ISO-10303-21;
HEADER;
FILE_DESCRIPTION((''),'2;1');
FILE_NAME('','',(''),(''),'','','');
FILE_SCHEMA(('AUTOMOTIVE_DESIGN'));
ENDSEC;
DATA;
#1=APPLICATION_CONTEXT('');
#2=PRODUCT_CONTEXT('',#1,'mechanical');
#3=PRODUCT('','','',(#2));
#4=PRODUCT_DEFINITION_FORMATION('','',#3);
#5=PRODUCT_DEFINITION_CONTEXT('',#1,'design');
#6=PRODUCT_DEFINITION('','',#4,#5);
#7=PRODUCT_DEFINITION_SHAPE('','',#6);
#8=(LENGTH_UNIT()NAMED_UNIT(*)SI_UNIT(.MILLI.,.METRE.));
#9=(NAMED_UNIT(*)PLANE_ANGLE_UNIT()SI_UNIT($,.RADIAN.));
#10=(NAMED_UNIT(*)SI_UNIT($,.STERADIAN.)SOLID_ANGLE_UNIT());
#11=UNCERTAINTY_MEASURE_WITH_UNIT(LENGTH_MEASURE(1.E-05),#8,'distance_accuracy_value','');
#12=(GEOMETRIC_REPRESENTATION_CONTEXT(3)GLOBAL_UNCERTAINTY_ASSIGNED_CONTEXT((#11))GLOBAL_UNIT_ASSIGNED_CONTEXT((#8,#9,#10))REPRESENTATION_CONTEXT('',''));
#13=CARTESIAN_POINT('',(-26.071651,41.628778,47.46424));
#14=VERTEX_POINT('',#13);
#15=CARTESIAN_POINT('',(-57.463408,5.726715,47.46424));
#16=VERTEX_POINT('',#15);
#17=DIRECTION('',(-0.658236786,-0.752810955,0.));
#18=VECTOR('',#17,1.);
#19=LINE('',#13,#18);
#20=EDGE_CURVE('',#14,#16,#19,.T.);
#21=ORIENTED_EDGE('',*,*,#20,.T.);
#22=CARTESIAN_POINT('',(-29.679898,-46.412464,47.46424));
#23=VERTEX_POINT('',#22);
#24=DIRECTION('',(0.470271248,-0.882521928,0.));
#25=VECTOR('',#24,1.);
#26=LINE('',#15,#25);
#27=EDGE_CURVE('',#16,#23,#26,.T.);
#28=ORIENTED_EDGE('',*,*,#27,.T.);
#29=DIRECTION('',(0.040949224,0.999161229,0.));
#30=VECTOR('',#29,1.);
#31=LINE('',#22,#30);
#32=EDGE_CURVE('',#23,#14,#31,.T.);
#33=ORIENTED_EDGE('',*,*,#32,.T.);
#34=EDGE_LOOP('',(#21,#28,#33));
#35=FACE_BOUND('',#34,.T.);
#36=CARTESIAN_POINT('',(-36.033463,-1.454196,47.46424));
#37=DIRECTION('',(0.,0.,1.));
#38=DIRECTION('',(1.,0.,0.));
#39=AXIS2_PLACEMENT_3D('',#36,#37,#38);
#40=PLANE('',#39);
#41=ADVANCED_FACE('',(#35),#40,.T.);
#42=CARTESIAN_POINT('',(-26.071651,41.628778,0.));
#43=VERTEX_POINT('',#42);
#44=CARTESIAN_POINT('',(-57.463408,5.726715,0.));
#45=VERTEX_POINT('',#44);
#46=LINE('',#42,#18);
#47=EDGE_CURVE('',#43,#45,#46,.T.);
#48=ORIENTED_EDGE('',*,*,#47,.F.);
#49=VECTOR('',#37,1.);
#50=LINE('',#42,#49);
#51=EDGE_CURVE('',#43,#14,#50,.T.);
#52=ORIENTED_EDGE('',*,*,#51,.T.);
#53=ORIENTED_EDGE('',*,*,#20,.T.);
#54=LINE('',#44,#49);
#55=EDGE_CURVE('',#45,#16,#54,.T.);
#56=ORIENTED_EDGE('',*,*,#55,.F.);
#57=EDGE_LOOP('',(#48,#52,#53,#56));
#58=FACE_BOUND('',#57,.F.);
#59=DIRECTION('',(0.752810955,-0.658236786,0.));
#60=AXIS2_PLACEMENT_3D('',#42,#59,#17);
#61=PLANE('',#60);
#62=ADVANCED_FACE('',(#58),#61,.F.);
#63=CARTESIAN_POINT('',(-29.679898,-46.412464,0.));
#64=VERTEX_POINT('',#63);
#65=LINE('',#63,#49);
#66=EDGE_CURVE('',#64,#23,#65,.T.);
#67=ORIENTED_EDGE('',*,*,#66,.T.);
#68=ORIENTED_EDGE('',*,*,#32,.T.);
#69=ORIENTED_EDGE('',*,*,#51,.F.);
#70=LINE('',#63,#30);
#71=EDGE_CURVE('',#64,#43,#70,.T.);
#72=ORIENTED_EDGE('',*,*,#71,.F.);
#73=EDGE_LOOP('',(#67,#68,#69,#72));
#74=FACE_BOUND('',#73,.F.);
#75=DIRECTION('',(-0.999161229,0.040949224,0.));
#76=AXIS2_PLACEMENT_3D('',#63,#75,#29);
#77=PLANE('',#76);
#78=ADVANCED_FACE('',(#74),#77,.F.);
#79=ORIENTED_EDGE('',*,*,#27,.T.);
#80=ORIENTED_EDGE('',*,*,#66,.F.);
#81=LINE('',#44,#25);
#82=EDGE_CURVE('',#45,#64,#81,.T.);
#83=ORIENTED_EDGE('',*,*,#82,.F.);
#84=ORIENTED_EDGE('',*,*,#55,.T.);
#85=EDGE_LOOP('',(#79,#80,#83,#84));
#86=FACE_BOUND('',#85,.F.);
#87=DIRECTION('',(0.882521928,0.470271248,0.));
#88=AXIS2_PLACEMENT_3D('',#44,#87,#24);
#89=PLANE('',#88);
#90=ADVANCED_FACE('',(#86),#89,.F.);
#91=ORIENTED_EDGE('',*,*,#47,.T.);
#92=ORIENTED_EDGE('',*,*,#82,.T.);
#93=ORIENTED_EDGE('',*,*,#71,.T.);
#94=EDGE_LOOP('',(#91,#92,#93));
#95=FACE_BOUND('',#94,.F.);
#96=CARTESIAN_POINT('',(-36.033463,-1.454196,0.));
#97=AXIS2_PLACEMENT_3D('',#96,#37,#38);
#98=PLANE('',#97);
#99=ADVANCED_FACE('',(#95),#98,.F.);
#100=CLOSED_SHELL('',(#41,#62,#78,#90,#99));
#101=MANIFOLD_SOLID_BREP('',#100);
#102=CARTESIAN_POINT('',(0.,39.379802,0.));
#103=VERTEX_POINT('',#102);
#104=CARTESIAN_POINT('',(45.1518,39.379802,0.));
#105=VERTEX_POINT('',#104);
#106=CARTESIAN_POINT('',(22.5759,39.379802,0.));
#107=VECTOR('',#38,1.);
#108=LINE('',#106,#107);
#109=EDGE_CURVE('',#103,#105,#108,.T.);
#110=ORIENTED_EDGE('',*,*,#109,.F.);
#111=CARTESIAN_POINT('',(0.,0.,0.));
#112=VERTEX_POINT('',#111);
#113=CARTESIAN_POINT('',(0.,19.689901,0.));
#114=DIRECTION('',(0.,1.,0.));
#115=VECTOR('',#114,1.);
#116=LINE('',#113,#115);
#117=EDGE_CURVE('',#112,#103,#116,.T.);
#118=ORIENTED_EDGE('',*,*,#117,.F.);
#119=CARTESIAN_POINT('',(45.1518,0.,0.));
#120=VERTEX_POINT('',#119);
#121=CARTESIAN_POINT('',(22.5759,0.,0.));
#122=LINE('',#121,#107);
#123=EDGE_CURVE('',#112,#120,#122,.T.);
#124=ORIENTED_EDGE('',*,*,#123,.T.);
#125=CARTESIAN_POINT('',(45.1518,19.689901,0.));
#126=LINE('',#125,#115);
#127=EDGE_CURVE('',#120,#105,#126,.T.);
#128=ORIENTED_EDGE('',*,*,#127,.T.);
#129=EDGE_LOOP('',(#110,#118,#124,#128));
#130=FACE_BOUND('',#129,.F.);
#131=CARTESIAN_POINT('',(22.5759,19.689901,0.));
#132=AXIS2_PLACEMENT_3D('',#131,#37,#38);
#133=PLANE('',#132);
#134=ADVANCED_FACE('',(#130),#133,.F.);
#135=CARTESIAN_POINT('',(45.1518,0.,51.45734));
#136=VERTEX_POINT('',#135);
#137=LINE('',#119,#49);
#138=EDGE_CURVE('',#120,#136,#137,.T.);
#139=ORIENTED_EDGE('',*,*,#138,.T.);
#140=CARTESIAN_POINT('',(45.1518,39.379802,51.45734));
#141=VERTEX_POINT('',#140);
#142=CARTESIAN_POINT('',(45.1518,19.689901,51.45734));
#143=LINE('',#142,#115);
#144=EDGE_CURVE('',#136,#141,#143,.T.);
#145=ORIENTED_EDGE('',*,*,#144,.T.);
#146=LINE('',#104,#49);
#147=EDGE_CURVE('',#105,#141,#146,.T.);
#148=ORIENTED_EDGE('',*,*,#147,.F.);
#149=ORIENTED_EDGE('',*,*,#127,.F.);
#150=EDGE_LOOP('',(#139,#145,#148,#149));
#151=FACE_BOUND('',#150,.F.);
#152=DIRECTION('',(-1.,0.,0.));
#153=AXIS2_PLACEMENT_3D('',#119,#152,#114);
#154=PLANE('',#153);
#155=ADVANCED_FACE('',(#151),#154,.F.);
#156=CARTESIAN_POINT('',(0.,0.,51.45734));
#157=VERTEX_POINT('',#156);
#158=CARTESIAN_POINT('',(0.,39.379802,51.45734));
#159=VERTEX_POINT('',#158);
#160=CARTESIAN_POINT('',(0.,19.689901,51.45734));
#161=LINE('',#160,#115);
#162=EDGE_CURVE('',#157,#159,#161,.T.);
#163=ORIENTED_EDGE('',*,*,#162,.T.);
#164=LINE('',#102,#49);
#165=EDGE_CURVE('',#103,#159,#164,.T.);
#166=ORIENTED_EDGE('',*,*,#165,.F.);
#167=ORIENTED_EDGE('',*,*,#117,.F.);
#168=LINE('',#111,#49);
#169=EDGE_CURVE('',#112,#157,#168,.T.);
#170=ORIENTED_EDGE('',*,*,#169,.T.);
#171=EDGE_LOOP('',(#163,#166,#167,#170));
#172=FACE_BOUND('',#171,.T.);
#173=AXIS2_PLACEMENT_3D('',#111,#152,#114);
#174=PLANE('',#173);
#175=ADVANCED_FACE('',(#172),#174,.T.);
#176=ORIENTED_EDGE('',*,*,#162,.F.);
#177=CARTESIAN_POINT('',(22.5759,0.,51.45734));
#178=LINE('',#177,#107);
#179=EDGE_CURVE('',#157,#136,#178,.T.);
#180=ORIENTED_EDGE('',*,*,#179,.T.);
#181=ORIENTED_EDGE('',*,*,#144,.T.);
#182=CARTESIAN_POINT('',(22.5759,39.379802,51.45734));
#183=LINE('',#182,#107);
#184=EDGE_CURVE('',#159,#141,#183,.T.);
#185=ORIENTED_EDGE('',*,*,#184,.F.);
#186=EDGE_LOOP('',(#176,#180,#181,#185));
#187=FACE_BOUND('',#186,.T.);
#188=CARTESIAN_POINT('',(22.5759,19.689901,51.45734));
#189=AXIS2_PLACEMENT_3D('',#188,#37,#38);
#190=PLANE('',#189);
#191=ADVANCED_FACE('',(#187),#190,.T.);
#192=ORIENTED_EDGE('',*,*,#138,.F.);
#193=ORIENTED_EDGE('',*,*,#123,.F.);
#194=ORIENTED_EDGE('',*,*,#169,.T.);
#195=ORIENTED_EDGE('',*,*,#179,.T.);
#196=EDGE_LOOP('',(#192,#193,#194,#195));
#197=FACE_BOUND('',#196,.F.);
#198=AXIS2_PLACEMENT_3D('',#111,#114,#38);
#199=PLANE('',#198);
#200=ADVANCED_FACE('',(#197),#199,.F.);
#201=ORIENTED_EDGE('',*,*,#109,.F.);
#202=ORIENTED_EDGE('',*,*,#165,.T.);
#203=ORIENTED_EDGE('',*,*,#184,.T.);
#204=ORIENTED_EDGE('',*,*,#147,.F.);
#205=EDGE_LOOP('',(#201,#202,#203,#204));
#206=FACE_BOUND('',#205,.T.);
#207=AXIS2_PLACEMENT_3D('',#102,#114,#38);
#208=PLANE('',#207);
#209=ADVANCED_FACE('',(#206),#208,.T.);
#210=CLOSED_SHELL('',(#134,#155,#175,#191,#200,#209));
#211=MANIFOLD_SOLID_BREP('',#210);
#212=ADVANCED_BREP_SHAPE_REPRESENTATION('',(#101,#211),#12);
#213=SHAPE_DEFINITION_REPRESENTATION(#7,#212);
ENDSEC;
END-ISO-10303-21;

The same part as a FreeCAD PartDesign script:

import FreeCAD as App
import Part
import Sketcher

V = App.Vector
Q = App.Units.Quantity


def add_polygon(sketch, points):
    """Adds a closed chain of lines whose ends are joined by coincident constraints."""
    first, n = sketch.GeometryCount, len(points)
    for a, b in zip(points, points[1:] + points[:1]):
        sketch.addGeometry(Part.LineSegment(App.Vector(*a, 0), App.Vector(*b, 0)), False)
    for i in range(n):
        sketch.addConstraint(Sketcher.Constraint("Coincident", first + i, 2, first + (i + 1) % n, 1))

doc = App.newDocument("Part")
params = doc.addObject("Spreadsheet::Sheet", "Params")
for row, (alias, value) in enumerate([
    ("pad1_length", "51.45734 mm"),
    ("pad2_length", "47.46424 mm"),
], start=1):
    params.set(f"A{row}", alias)
    params.set(f"B{row}", "=" + value)
    params.setAlias(f"B{row}", alias)

body = doc.addObject("PartDesign::Body", "Body")

# Sketch on XY plane
sketch1 = doc.addObject("Sketcher::SketchObject", "Sketch")
body.addObject(sketch1)
sketch1.AttachmentSupport = (doc.XY_Plane, [""])
sketch1.MapMode = "FlatFace"
add_polygon(sketch1, [(0, 39.379802), (0, 0), (45.1518, 0), (45.1518, 39.379802)])  # lines 0-3
sketch1.addConstraint([
    Sketcher.Constraint("Vertical", 0),
    Sketcher.Constraint("Horizontal", 1),
    Sketcher.Constraint("Vertical", 2),
    Sketcher.Constraint("Horizontal", 3),
    Sketcher.Constraint("Coincident", 0, 2, -1, 1),
    Sketcher.Constraint("DistanceX", 1, 1, 1, 2, Q("45.1518 mm")),
    Sketcher.Constraint("DistanceY", 0, 2, 0, 1, Q("39.379802 mm")),
])
pad1 = doc.addObject("PartDesign::Pad", "Pad")
body.addObject(pad1)
pad1.Profile = sketch1
pad1.setExpression("Length", "Params.pad1_length")
body2 = doc.addObject("PartDesign::Body", "Body001")

# Sketch on XY plane
sketch2 = doc.addObject("Sketcher::SketchObject", "Sketch001")
body2.addObject(sketch2)
sketch2.AttachmentSupport = (doc.getObject("XY_Plane001"), [""])
sketch2.MapMode = "FlatFace"
add_polygon(sketch2, [(-29.679898, -46.412464), (-26.071651, 41.628778), (-57.463408, 5.726715)])  # lines 0-2
sketch2.addConstraint([
    Sketcher.Constraint("DistanceX", 2, 2, -1, 1, Q("29.679898 mm")),
    Sketcher.Constraint("Distance", 0, Q("88.11515 mm")),
    Sketcher.Constraint("DistanceX", 0, 2, -1, 1, Q("26.071651 mm")),
    Sketcher.Constraint("DistanceX", 1, 2, 2, 2, Q("27.78351 mm")),
    Sketcher.Constraint("DistanceY", 2, 2, 1, 2, Q("52.139179 mm")),
    Sketcher.Constraint("DistanceY", -1, 1, 0, 2, Q("41.628778 mm")),
])
pad2 = doc.addObject("PartDesign::Pad", "Pad001")
body2.addObject(pad2)
pad2.Profile = sketch2
pad2.setExpression("Length", "Params.pad2_length")

doc.recompute()
